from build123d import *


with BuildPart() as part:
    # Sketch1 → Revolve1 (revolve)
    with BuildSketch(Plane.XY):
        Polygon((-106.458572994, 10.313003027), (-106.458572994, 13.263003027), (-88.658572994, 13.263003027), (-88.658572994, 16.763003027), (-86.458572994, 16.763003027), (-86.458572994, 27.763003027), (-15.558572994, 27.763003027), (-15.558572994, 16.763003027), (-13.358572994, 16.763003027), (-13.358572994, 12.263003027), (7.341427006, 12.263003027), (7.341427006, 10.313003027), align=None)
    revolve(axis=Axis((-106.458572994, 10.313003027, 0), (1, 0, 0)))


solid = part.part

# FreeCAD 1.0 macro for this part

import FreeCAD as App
import Part
import Sketcher

V = App.Vector
Q = App.Units.Quantity

doc = App.newDocument("Part")
body = doc.addObject("PartDesign::Body", "Body")

# Sketch on XY plane
sketch1 = doc.addObject("Sketcher::SketchObject", "Sketch")
body.addObject(sketch1)
sketch1.AttachmentSupport = (doc.XY_Plane, [""])
sketch1.MapMode = "FlatFace"
sketch1.addGeometry([
    Part.LineSegment(V(-106.5, 13.3, 0), V(-106.5, 10.3, 0)),  # 0
    Part.LineSegment(V(-106.5, 10.3, 0), V(7.3, 10.3, 0)),  # 1
    Part.LineSegment(V(7.3, 10.3, 0), V(7.3, 12.3, 0)),  # 2
    Part.LineSegment(V(7.3, 12.3, 0), V(-13.4, 12.3, 0)),  # 3
    Part.LineSegment(V(-13.4, 12.3, 0), V(-13.4, 16.8, 0)),  # 4
    Part.LineSegment(V(-13.4, 16.8, 0), V(-15.6, 16.8, 0)),  # 5
    Part.LineSegment(V(-15.6, 16.8, 0), V(-15.6, 27.8, 0)),  # 6
    Part.LineSegment(V(-15.6, 27.8, 0), V(-86.5, 27.8, 0)),  # 7
    Part.LineSegment(V(-86.5, 27.8, 0), V(-86.5, 16.8, 0)),  # 8
    Part.LineSegment(V(-86.5, 16.8, 0), V(-88.7, 16.8, 0)),  # 9
    Part.LineSegment(V(-88.7, 16.8, 0), V(-88.7, 13.3, 0)),  # 10
    Part.LineSegment(V(-88.7, 13.3, 0), V(-106.5, 13.3, 0)),  # 11
], False)
sketch1.addGeometry(Part.LineSegment(V(-106.5, 10.3, 0), V(7.3, 10.3, 0)), True)  # axis
sketch1.addConstraint([
    Sketcher.Constraint("Coincident", 0, 2, 1, 1),
    Sketcher.Constraint("Coincident", 1, 2, 2, 1),
    Sketcher.Constraint("Coincident", 2, 2, 3, 1),
    Sketcher.Constraint("Coincident", 3, 2, 4, 1),
    Sketcher.Constraint("Coincident", 4, 2, 5, 1),
    Sketcher.Constraint("Coincident", 5, 2, 6, 1),
    Sketcher.Constraint("Coincident", 6, 2, 7, 1),
    Sketcher.Constraint("Coincident", 7, 2, 8, 1),
    Sketcher.Constraint("Coincident", 8, 2, 9, 1),
    Sketcher.Constraint("Coincident", 9, 2, 10, 1),
    Sketcher.Constraint("Coincident", 10, 2, 11, 1),
    Sketcher.Constraint("Coincident", 11, 2, 0, 1),
    Sketcher.Constraint("Vertical", 0),
    Sketcher.Constraint("Horizontal", 1),
    Sketcher.Constraint("Vertical", 2),
    Sketcher.Constraint("Horizontal", 3),
    Sketcher.Constraint("Vertical", 4),
    Sketcher.Constraint("Horizontal", 5),
    Sketcher.Constraint("Vertical", 6),
    Sketcher.Constraint("Horizontal", 7),
    Sketcher.Constraint("Vertical", 8),
    Sketcher.Constraint("Horizontal", 9),
    Sketcher.Constraint("Vertical", 10),
    Sketcher.Constraint("Horizontal", 11),
    Sketcher.Constraint("Horizontal", 12),
    Sketcher.Constraint("Coincident", 12, 1, 0, 2),
    Sketcher.Constraint("Horizontal", 5, 2, 8, 2),
    Sketcher.Constraint("Vertical", 2, 2, 12, 2),
    Sketcher.Constraint("Equal", 5, 9),
    Sketcher.Constraint("DistanceY", 6, 1, 6, 2, Q("11 mm")),
    Sketcher.Constraint("DistanceX", 1, 1, 1, 2, Q("113.8 mm")),
    Sketcher.Constraint("DistanceX", 3, 2, 3, 1, Q("20.7 mm")),
    Sketcher.Constraint("DistanceX", 5, 2, 5, 1, Q("2.2 mm")),
    Sketcher.Constraint("DistanceX", 7, 2, 7, 1, Q("70.9 mm")),
    Sketcher.Constraint("DistanceY", 4, 1, 4, 2, Q("4.5 mm")),
    Sketcher.Constraint("DistanceY", 10, 2, 10, 1, Q("3.5 mm")),
    Sketcher.Constraint("DistanceY", 0, 2, 0, 1, Q("2.95 mm")),
    Sketcher.Constraint("DistanceX", 0, 2, -1, 1, Q("106.458573 mm")),
    Sketcher.Constraint("DistanceY", -1, 1, 0, 2, Q("10.313003 mm")),
])
revolution = doc.addObject("PartDesign::Revolution", "Revolution")
body.addObject(revolution)
revolution.Profile = sketch1
revolution.ReferenceAxis = (sketch1, ["Axis0"])
revolution.Angle = 360

doc.recompute()
